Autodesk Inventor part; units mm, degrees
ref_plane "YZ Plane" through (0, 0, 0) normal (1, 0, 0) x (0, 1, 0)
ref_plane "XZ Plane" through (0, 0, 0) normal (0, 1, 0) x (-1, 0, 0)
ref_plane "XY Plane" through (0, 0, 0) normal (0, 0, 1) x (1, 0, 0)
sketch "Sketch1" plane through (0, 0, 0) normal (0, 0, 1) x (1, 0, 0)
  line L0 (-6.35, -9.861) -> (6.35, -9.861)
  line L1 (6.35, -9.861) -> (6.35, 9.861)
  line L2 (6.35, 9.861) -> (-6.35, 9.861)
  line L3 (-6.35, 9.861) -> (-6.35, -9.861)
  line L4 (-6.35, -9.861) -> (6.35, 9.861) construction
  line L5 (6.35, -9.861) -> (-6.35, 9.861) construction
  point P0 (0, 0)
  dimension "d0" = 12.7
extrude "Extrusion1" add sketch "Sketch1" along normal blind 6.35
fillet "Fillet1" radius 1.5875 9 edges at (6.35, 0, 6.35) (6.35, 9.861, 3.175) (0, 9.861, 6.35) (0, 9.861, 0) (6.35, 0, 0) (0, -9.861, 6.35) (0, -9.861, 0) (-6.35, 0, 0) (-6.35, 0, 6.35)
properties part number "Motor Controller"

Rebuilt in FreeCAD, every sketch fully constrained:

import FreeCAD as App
import Part
import Sketcher

V = App.Vector
Q = App.Units.Quantity


def edges_at(feature, points):
    """Names of the edges that pass closest to the given points."""
    edges = feature.Shape.Edges
    near = lambda p: min(range(len(edges)), key=lambda i: edges[i].distToShape(Part.Vertex(*p))[0])
    return sorted({f"Edge{near(p) + 1}" for p in points})

doc = App.newDocument("Part")
body = doc.addObject("PartDesign::Body", "Body")

sketch1 = body.newObject("Sketcher::SketchObject", "Sketch")
sketch1.AttachmentSupport = (doc.getObject("XY_Plane"), [""])
sketch1.MapMode = "FlatFace"
sketch1.addGeometry(Part.LineSegment(V(-6.35, 9.861, 0), V(-6.35, -9.861, 0)), False)
sketch1.addGeometry(Part.LineSegment(V(-6.35, -9.861, 0), V(6.35, -9.861, 0)), False)
sketch1.addGeometry(Part.LineSegment(V(6.35, -9.861, 0), V(6.35, 9.861, 0)), False)
sketch1.addGeometry(Part.LineSegment(V(6.35, 9.861, 0), V(-6.35, 9.861, 0)), False)
sketch1.addConstraint(Sketcher.Constraint("Coincident", 0, 2, 1, 1))
sketch1.addConstraint(Sketcher.Constraint("Coincident", 1, 2, 2, 1))
sketch1.addConstraint(Sketcher.Constraint("Coincident", 2, 2, 3, 1))
sketch1.addConstraint(Sketcher.Constraint("Coincident", 3, 2, 0, 1))
sketch1.addConstraint(Sketcher.Constraint("Vertical", 0))
sketch1.addConstraint(Sketcher.Constraint("Horizontal", 1))
sketch1.addConstraint(Sketcher.Constraint("Vertical", 2))
sketch1.addConstraint(Sketcher.Constraint("Horizontal", 3))
sketch1.addConstraint(Sketcher.Constraint("Symmetric", 0, 2, 2, 2, -1, 1))
sketch1.addConstraint(Sketcher.Constraint("DistanceX", 1, 1, 1, 2, Q("0.5 in")))
sketch1.addConstraint(Sketcher.Constraint("DistanceY", 0, 2, 0, 1, Q("19.722 mm")))
pad1 = body.newObject("PartDesign::Pad", "Pad")
pad1.Profile = sketch1
pad1.Length = Q("0.25 in")
doc.recompute()

fillet = body.newObject("PartDesign::Fillet", "Fillet")
fillet.Base = (pad1, edges_at(pad1, [
    (6.35, 0, 6.35),
    (6.35, 9.861, 3.175),
    (0, 9.861, 6.35),
    (0, 9.861, 0),
    (6.35, 0, 0),
    (0, -9.861, 6.35),
    (0, -9.861, 0),
    (-6.35, 0, 0),
    (-6.35, 0, 6.35),
]))
fillet.Radius = Q("0.0625 in")

doc.recompute()
